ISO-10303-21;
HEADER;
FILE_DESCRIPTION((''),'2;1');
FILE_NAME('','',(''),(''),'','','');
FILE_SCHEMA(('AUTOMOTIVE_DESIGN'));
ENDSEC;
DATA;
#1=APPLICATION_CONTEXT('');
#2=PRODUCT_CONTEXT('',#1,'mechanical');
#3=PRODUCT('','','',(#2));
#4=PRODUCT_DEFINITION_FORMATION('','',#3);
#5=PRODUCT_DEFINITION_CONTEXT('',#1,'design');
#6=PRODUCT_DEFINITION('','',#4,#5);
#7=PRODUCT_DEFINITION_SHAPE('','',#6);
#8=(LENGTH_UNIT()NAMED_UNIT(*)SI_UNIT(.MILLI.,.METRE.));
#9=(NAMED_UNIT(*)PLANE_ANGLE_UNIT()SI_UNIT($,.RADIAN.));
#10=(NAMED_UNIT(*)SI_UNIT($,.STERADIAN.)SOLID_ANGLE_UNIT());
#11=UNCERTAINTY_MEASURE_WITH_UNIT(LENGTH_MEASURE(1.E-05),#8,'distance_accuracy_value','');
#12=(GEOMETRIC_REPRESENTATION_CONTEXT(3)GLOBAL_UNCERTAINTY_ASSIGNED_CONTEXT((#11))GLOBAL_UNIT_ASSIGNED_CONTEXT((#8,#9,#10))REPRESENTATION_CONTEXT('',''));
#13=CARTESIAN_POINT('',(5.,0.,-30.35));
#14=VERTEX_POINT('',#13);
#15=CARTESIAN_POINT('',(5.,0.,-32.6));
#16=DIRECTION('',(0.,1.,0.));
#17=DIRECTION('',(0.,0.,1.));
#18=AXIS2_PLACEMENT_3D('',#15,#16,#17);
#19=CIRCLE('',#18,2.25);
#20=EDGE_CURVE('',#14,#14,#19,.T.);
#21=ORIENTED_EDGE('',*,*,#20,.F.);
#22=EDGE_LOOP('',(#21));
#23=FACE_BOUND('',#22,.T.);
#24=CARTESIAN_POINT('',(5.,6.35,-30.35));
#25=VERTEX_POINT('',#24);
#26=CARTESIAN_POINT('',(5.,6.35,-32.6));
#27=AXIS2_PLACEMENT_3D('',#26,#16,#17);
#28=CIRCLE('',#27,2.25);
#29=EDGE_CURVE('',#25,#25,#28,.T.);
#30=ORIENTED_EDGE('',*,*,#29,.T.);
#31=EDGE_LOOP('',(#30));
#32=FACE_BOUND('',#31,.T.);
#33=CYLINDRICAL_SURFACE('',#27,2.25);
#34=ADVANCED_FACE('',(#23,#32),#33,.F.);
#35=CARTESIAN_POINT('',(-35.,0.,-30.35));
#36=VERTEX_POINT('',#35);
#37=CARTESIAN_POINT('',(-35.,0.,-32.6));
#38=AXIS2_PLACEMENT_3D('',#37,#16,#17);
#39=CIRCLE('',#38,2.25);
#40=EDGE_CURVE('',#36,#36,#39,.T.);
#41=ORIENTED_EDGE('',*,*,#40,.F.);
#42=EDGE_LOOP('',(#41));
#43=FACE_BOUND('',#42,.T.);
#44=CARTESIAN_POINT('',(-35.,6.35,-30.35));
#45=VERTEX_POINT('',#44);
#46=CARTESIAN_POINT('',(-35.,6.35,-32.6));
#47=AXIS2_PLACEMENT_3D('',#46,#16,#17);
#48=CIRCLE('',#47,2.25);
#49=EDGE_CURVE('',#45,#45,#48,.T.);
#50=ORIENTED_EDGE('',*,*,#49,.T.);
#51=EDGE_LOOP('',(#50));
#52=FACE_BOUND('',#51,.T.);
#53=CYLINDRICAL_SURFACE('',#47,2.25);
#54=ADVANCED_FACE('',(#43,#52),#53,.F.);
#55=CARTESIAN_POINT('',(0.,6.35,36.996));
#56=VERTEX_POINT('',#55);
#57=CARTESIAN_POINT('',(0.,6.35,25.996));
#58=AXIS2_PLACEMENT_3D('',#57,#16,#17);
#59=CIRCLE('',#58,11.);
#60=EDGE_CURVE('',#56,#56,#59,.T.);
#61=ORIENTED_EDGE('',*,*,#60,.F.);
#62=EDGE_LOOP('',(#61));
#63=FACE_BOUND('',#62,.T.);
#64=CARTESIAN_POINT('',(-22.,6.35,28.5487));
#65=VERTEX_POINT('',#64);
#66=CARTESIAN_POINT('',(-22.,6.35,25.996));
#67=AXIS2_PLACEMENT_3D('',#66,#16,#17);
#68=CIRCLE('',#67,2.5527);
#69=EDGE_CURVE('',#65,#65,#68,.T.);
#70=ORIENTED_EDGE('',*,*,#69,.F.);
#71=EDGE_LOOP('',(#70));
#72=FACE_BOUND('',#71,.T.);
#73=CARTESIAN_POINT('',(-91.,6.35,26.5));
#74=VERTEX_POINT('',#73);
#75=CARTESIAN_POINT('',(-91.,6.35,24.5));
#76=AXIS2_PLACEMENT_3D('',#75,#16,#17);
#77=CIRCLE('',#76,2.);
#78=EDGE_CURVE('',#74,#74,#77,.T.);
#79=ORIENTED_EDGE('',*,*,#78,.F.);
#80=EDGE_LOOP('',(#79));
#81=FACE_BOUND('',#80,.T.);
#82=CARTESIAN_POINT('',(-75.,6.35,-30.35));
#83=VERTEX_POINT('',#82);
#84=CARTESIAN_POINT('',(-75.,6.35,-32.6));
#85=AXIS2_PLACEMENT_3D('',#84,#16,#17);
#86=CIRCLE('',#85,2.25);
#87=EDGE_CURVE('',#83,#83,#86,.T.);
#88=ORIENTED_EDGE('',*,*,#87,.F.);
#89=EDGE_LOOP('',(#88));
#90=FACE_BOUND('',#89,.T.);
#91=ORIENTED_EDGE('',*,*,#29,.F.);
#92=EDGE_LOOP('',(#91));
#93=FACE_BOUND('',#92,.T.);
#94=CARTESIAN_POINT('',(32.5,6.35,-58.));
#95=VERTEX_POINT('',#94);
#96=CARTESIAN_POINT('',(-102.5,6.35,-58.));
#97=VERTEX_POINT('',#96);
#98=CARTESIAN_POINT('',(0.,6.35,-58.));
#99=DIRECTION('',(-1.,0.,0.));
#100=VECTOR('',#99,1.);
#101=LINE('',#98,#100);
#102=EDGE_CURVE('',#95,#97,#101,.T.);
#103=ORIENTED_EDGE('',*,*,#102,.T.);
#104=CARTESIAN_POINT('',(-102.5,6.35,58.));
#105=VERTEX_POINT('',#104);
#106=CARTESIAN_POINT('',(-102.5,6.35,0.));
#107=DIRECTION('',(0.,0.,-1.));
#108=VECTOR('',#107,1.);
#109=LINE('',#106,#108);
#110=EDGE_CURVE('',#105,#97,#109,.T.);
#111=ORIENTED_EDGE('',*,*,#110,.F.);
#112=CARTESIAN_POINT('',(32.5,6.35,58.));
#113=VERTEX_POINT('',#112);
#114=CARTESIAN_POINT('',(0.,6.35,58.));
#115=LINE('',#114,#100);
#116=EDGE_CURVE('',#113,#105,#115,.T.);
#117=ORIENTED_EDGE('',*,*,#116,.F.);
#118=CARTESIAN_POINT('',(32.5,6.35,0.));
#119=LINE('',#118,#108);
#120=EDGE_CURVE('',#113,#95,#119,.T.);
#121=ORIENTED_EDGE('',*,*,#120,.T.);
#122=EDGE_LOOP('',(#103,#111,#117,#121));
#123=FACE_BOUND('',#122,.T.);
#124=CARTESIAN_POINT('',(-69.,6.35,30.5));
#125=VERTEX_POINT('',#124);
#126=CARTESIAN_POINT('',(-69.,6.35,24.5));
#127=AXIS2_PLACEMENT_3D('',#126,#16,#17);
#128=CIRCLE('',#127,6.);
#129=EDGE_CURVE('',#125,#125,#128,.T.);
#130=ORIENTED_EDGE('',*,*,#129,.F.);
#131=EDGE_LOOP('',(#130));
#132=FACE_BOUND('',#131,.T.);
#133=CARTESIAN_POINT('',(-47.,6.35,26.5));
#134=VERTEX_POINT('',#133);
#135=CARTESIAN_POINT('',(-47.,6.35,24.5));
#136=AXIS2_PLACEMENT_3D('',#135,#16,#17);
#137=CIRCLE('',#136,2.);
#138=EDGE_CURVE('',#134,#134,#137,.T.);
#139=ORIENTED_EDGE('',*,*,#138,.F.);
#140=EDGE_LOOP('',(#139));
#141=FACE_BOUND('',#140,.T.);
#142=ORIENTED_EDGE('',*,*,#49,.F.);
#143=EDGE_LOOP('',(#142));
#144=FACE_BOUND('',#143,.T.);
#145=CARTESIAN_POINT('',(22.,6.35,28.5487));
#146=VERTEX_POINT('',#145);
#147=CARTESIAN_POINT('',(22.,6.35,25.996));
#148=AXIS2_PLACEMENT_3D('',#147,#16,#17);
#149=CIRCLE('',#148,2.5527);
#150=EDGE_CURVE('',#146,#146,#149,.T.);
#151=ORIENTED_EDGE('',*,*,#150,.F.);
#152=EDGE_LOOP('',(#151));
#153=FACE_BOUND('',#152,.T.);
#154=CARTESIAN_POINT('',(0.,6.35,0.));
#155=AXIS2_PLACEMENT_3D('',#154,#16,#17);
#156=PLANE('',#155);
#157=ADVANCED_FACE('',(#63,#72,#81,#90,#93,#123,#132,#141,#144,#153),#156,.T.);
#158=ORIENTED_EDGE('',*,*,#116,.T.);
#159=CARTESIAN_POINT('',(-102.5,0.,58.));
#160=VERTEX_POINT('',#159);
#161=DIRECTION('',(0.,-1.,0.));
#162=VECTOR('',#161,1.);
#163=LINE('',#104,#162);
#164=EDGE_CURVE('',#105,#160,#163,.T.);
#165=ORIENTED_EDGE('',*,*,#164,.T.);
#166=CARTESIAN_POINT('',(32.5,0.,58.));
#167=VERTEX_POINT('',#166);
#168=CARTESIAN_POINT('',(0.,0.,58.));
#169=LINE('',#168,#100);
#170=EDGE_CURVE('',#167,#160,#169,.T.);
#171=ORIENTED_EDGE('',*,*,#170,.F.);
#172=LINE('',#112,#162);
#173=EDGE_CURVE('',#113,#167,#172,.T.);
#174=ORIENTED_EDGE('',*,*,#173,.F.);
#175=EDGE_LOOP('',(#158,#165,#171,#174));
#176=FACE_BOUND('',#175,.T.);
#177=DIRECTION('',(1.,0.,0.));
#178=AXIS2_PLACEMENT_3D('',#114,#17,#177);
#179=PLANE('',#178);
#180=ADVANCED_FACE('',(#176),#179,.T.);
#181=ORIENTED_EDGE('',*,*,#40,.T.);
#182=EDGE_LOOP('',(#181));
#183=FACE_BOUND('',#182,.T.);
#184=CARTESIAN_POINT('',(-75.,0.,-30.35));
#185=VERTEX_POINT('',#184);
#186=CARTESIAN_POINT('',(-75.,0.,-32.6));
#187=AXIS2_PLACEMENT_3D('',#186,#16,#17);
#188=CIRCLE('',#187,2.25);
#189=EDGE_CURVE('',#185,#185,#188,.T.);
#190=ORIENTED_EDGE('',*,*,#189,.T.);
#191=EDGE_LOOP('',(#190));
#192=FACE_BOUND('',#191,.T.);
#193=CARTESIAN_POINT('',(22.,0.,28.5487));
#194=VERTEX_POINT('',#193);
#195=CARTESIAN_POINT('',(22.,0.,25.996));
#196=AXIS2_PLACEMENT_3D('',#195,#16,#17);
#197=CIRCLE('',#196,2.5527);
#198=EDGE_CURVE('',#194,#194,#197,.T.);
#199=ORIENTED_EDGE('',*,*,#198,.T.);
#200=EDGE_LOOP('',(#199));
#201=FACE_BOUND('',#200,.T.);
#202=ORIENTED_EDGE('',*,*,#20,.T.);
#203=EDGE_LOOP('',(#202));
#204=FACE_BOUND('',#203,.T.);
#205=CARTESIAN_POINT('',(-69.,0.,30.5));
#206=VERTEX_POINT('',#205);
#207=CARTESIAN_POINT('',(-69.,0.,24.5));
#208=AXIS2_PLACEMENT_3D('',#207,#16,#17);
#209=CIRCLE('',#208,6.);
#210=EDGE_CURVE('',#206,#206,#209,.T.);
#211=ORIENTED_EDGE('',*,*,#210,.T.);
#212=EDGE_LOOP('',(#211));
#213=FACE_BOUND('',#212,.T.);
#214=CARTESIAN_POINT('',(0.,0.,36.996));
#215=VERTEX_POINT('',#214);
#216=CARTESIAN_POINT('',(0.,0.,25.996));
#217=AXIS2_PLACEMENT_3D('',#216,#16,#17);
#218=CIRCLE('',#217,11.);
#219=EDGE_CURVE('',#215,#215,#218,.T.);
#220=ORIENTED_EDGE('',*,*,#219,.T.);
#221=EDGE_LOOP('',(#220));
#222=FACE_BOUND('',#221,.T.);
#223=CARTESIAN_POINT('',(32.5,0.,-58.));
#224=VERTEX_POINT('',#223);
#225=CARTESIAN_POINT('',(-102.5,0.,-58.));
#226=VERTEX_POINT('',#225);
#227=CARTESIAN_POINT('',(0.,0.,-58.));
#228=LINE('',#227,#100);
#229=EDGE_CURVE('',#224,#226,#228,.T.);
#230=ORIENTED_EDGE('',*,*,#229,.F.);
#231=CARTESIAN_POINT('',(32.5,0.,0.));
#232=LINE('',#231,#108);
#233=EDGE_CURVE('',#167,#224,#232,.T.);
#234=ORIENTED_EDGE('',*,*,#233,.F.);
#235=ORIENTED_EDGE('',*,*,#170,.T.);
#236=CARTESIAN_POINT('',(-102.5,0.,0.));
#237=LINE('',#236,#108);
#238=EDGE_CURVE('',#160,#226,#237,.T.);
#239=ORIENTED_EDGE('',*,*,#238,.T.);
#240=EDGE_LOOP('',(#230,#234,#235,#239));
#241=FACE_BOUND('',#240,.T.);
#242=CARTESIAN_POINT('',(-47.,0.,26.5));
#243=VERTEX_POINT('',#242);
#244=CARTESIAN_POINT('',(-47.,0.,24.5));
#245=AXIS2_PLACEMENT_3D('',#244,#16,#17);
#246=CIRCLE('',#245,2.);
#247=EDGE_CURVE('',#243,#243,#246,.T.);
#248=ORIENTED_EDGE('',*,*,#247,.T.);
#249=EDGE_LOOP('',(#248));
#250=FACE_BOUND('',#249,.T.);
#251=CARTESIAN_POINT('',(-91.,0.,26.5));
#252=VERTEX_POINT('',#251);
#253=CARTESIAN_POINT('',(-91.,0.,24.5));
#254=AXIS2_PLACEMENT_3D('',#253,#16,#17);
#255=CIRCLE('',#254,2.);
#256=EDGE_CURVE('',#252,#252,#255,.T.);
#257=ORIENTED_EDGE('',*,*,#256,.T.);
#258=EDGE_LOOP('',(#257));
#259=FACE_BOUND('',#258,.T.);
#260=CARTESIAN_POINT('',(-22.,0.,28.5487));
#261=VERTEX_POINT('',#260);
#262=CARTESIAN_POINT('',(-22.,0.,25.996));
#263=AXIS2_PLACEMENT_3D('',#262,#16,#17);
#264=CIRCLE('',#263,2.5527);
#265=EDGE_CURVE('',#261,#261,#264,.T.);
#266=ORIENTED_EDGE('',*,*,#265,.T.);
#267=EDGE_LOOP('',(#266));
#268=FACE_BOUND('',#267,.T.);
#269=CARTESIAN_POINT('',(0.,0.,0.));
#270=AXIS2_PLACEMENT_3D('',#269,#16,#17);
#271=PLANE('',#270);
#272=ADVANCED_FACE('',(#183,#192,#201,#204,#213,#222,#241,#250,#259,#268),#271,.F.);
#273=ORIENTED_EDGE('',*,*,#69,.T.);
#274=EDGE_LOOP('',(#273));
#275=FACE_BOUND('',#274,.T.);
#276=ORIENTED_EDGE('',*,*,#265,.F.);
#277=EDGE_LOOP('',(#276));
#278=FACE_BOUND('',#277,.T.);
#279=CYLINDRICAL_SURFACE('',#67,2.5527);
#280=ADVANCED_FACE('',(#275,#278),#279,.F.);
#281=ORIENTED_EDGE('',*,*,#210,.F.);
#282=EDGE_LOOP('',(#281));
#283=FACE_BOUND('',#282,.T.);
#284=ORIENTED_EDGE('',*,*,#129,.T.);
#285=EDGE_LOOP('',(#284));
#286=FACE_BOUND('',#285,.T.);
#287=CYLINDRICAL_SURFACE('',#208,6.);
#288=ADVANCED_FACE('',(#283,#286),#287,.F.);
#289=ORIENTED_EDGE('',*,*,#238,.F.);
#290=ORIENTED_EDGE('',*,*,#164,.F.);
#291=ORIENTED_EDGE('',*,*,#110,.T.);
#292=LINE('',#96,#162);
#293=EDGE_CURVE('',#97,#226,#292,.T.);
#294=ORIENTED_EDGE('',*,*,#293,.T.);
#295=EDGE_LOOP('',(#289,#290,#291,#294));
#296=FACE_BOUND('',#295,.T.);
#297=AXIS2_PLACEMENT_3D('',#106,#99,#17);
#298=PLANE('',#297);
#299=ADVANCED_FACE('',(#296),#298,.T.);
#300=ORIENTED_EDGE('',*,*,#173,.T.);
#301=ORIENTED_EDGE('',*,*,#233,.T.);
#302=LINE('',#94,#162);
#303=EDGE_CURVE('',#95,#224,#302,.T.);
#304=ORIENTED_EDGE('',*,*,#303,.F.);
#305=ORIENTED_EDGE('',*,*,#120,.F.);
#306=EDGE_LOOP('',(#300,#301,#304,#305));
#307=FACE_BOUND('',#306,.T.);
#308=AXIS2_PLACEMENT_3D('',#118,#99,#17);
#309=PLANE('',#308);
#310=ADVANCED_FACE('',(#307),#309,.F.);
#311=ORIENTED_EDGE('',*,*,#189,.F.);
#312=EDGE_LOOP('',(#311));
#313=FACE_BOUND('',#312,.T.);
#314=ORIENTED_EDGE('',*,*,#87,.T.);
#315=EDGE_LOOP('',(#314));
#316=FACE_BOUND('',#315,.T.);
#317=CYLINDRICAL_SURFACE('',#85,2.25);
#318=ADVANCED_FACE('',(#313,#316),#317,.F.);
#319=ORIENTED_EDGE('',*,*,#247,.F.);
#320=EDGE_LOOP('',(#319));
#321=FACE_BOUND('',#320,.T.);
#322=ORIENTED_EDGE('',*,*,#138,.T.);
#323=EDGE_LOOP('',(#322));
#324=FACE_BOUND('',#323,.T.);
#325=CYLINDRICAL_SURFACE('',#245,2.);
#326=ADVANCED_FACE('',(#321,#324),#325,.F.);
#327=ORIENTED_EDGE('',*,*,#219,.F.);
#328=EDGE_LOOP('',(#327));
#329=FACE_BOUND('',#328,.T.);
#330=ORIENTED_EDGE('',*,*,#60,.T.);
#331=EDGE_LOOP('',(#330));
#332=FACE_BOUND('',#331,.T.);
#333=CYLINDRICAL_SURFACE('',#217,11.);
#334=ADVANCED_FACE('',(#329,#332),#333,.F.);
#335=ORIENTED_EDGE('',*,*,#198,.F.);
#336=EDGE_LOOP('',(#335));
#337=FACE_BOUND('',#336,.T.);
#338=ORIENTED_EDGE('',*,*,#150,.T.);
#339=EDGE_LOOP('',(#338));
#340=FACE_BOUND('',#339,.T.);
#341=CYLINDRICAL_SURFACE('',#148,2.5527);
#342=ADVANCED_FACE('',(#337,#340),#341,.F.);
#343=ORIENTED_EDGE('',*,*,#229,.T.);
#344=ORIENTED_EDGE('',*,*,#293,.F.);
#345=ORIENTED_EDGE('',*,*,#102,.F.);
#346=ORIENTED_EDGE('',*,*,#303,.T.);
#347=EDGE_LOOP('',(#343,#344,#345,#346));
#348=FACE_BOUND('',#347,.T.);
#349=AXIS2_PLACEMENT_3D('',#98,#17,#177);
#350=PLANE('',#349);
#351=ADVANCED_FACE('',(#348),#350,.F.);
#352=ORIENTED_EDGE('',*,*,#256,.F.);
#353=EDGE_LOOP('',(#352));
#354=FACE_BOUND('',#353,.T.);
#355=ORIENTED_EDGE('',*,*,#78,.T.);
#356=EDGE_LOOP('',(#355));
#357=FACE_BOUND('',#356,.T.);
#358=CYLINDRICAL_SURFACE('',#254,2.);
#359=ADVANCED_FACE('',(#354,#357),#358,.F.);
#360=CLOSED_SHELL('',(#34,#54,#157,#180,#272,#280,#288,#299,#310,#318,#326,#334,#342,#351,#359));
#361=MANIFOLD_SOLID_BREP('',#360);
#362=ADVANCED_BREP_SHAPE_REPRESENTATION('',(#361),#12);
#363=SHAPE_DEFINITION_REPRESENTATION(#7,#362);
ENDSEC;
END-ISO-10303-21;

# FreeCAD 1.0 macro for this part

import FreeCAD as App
import Part
import Sketcher
from FreeCAD import Vector
Q = App.Units.Quantity

doc = App.newDocument("Part")
body = doc.addObject("PartDesign::Body", "Body")

# Sketch on XZ plane
sketch1 = body.newObject("Sketcher::SketchObject", "Sketch")
sketch1.AttachmentSupport = (doc.getObject("XZ_Plane"), [""])
sketch1.MapMode = "FlatFace"
sketch1.addGeometry(Part.LineSegment(Vector(32, 58, 0), Vector(32, -58, 0)), False)
sketch1.addGeometry(Part.LineSegment(Vector(32, -58, 0), Vector(-102, -58, 0)), False)
sketch1.addGeometry(Part.LineSegment(Vector(-102, -58, 0), Vector(-102, 58, 0)), False)
sketch1.addGeometry(Part.LineSegment(Vector(-102, 58, 0), Vector(32, 58, 0)), False)
sketch1.addConstraint(Sketcher.Constraint("Coincident", 0, 2, 1, 1))
sketch1.addConstraint(Sketcher.Constraint("Coincident", 1, 2, 2, 1))
sketch1.addConstraint(Sketcher.Constraint("Coincident", 2, 2, 3, 1))
sketch1.addConstraint(Sketcher.Constraint("Coincident", 3, 2, 0, 1))
sketch1.addConstraint(Sketcher.Constraint("Vertical", 0))
sketch1.addConstraint(Sketcher.Constraint("Horizontal", 1))
sketch1.addConstraint(Sketcher.Constraint("Vertical", 2))
sketch1.addConstraint(Sketcher.Constraint("Horizontal", 3))
sketch1.addConstraint(Sketcher.Constraint("DistanceX", 1, 2, 1, 1, Q("135 mm")))
sketch1.addConstraint(Sketcher.Constraint("DistanceY", 0, 2, 0, 1, Q("116 mm")))
sketch1.addConstraint(Sketcher.Constraint("DistanceY", 0, 2, -1, 1, Q("58 mm")))
sketch1.addConstraint(Sketcher.Constraint("DistanceX", -1, 1, 0, 2, Q("32.5 mm")))
pad1 = body.newObject("PartDesign::Pad", "Pad")
pad1.Profile = sketch1
pad1.Length = 6.35
pad1.Reversed = True

# Sketch on XZ plane
sketch2 = body.newObject("Sketcher::SketchObject", "Sketch001")
sketch2.AttachmentSupport = (doc.getObject("XZ_Plane"), [""])
sketch2.MapMode = "FlatFace"
sketch2.AttachmentOffset = App.Placement(Vector(0, 0, -6.35), App.Rotation())
sketch2.addGeometry(Part.Circle(Vector(-22, 26, 0), Vector(0, 0, 1), 2.6), False)
sketch2.addGeometry(Part.Circle(Vector(22, 26, 0), Vector(0, 0, 1), 2.6), False)
sketch2.addConstraint(Sketcher.Constraint("Equal", 0, 1))
sketch2.addConstraint(Sketcher.Constraint("Symmetric", 0, 3, 1, 3, -2))
sketch2.addConstraint(Sketcher.Constraint("DistanceX", 0, 3, -1, 1, Q("22 mm")))
sketch2.addConstraint(Sketcher.Constraint("Diameter", 0, Q("5.1054 mm")))
sketch2.addConstraint(Sketcher.Constraint("DistanceY", -1, 1, 0, 3, Q("25.996 mm")))
doc.recompute()
hole = body.newObject("PartDesign::Hole", "Hole")
hole.Profile = sketch2
hole.ThreadType = "None"
hole.Diameter = 5.1054
hole.DepthType = "ThroughAll"
hole.Reversed = True

# Sketch on XZ plane
sketch3 = body.newObject("Sketcher::SketchObject", "Sketch002")
sketch3.AttachmentSupport = (doc.getObject("XZ_Plane"), [""])
sketch3.MapMode = "FlatFace"
sketch3.AttachmentOffset = App.Placement(Vector(0, 0, -6.35), App.Rotation())
sketch3.addGeometry(Part.Circle(Vector(0, 26, 0), Vector(0, 0, 1), 11), False)
sketch3.addConstraint(Sketcher.Constraint("PointOnObject", 0, 3, -2))
sketch3.addConstraint(Sketcher.Constraint("Diameter", 0, Q("22 mm")))
sketch3.addConstraint(Sketcher.Constraint("DistanceY", -1, 1, 0, 3, Q("25.996 mm")))
pocket1 = body.newObject("PartDesign::Pocket", "Pocket")
pocket1.Profile = sketch3
pocket1.Type = "ThroughAll"
pocket1.Reversed = True

# Sketch on XZ plane
sketch4 = body.newObject("Sketcher::SketchObject", "Sketch003")
sketch4.AttachmentSupport = (doc.getObject("XZ_Plane"), [""])
sketch4.MapMode = "FlatFace"
sketch4.AttachmentOffset = App.Placement(Vector(0, 0, -6.35), App.Rotation())
sketch4.addGeometry(Part.Circle(Vector(-75, -32.6, 0), Vector(0, 0, 1), 2.2), False)
sketch4.addGeometry(Part.Circle(Vector(-35, -32.6, 0), Vector(0, 0, 1), 2.2), False)
sketch4.addGeometry(Part.Circle(Vector(5, -32.6, 0), Vector(0, 0, 1), 2.2), False)
sketch4.addConstraint(Sketcher.Constraint("Equal", 0, 1))
sketch4.addConstraint(Sketcher.Constraint("Equal", 1, 2))
sketch4.addConstraint(Sketcher.Constraint("Horizontal", 0, 3, 1, 3))
sketch4.addConstraint(Sketcher.Constraint("Horizontal", 1, 3, 2, 3))
sketch4.addConstraint(Sketcher.Constraint("Diameter", 0, Q("4.5 mm")))
sketch4.addConstraint(Sketcher.Constraint("DistanceX", 0, 3, -1, 1, Q("75 mm")))
sketch4.addConstraint(Sketcher.Constraint("DistanceX", 1, 3, -1, 1, Q("35 mm")))
sketch4.addConstraint(Sketcher.Constraint("DistanceX", -1, 1, 2, 3, Q("5 mm")))
sketch4.addConstraint(Sketcher.Constraint("DistanceY", 0, 3, -1, 1, Q("32.6 mm")))
doc.recompute()
hole2 = body.newObject("PartDesign::Hole", "Hole001")
hole2.Profile = sketch4
hole2.ThreadType = "None"
hole2.Diameter = 4.5
hole2.DepthType = "ThroughAll"
hole2.Reversed = True

# Sketch on XZ plane
sketch5 = body.newObject("Sketcher::SketchObject", "Sketch004")
sketch5.AttachmentSupport = (doc.getObject("XZ_Plane"), [""])
sketch5.MapMode = "FlatFace"
sketch5.AttachmentOffset = App.Placement(Vector(0, 0, -6.35), App.Rotation())
sketch5.addGeometry(Part.Circle(Vector(-69, 24.5, 0), Vector(0, 0, 1), 6), False)
sketch5.addGeometry(Part.Circle(Vector(-91, 24.5, 0), Vector(0, 0, 1), 2), False)
sketch5.addGeometry(Part.Circle(Vector(-47, 24.5, 0), Vector(0, 0, 1), 2), False)
sketch5.addConstraint(Sketcher.Constraint("Equal", 1, 2))
sketch5.addConstraint(Sketcher.Constraint("Horizontal", 0, 3, 1, 3))
sketch5.addConstraint(Sketcher.Constraint("Horizontal", 1, 3, 2, 3))
sketch5.addConstraint(Sketcher.Constraint("Diameter", 0, Q("12 mm")))
sketch5.addConstraint(Sketcher.Constraint("Diameter", 1, Q("4 mm")))
sketch5.addConstraint(Sketcher.Constraint("DistanceX", 0, 3, -1, 1, Q("69 mm")))
sketch5.addConstraint(Sketcher.Constraint("DistanceX", 1, 3, -1, 1, Q("91 mm")))
sketch5.addConstraint(Sketcher.Constraint("DistanceX", 2, 3, -1, 1, Q("47 mm")))
sketch5.addConstraint(Sketcher.Constraint("DistanceY", -1, 1, 0, 3, Q("24.5 mm")))
pocket2 = body.newObject("PartDesign::Pocket", "Pocket001")
pocket2.Profile = sketch5
pocket2.Type = "ThroughAll"
pocket2.Midplane = True

doc.recompute()
